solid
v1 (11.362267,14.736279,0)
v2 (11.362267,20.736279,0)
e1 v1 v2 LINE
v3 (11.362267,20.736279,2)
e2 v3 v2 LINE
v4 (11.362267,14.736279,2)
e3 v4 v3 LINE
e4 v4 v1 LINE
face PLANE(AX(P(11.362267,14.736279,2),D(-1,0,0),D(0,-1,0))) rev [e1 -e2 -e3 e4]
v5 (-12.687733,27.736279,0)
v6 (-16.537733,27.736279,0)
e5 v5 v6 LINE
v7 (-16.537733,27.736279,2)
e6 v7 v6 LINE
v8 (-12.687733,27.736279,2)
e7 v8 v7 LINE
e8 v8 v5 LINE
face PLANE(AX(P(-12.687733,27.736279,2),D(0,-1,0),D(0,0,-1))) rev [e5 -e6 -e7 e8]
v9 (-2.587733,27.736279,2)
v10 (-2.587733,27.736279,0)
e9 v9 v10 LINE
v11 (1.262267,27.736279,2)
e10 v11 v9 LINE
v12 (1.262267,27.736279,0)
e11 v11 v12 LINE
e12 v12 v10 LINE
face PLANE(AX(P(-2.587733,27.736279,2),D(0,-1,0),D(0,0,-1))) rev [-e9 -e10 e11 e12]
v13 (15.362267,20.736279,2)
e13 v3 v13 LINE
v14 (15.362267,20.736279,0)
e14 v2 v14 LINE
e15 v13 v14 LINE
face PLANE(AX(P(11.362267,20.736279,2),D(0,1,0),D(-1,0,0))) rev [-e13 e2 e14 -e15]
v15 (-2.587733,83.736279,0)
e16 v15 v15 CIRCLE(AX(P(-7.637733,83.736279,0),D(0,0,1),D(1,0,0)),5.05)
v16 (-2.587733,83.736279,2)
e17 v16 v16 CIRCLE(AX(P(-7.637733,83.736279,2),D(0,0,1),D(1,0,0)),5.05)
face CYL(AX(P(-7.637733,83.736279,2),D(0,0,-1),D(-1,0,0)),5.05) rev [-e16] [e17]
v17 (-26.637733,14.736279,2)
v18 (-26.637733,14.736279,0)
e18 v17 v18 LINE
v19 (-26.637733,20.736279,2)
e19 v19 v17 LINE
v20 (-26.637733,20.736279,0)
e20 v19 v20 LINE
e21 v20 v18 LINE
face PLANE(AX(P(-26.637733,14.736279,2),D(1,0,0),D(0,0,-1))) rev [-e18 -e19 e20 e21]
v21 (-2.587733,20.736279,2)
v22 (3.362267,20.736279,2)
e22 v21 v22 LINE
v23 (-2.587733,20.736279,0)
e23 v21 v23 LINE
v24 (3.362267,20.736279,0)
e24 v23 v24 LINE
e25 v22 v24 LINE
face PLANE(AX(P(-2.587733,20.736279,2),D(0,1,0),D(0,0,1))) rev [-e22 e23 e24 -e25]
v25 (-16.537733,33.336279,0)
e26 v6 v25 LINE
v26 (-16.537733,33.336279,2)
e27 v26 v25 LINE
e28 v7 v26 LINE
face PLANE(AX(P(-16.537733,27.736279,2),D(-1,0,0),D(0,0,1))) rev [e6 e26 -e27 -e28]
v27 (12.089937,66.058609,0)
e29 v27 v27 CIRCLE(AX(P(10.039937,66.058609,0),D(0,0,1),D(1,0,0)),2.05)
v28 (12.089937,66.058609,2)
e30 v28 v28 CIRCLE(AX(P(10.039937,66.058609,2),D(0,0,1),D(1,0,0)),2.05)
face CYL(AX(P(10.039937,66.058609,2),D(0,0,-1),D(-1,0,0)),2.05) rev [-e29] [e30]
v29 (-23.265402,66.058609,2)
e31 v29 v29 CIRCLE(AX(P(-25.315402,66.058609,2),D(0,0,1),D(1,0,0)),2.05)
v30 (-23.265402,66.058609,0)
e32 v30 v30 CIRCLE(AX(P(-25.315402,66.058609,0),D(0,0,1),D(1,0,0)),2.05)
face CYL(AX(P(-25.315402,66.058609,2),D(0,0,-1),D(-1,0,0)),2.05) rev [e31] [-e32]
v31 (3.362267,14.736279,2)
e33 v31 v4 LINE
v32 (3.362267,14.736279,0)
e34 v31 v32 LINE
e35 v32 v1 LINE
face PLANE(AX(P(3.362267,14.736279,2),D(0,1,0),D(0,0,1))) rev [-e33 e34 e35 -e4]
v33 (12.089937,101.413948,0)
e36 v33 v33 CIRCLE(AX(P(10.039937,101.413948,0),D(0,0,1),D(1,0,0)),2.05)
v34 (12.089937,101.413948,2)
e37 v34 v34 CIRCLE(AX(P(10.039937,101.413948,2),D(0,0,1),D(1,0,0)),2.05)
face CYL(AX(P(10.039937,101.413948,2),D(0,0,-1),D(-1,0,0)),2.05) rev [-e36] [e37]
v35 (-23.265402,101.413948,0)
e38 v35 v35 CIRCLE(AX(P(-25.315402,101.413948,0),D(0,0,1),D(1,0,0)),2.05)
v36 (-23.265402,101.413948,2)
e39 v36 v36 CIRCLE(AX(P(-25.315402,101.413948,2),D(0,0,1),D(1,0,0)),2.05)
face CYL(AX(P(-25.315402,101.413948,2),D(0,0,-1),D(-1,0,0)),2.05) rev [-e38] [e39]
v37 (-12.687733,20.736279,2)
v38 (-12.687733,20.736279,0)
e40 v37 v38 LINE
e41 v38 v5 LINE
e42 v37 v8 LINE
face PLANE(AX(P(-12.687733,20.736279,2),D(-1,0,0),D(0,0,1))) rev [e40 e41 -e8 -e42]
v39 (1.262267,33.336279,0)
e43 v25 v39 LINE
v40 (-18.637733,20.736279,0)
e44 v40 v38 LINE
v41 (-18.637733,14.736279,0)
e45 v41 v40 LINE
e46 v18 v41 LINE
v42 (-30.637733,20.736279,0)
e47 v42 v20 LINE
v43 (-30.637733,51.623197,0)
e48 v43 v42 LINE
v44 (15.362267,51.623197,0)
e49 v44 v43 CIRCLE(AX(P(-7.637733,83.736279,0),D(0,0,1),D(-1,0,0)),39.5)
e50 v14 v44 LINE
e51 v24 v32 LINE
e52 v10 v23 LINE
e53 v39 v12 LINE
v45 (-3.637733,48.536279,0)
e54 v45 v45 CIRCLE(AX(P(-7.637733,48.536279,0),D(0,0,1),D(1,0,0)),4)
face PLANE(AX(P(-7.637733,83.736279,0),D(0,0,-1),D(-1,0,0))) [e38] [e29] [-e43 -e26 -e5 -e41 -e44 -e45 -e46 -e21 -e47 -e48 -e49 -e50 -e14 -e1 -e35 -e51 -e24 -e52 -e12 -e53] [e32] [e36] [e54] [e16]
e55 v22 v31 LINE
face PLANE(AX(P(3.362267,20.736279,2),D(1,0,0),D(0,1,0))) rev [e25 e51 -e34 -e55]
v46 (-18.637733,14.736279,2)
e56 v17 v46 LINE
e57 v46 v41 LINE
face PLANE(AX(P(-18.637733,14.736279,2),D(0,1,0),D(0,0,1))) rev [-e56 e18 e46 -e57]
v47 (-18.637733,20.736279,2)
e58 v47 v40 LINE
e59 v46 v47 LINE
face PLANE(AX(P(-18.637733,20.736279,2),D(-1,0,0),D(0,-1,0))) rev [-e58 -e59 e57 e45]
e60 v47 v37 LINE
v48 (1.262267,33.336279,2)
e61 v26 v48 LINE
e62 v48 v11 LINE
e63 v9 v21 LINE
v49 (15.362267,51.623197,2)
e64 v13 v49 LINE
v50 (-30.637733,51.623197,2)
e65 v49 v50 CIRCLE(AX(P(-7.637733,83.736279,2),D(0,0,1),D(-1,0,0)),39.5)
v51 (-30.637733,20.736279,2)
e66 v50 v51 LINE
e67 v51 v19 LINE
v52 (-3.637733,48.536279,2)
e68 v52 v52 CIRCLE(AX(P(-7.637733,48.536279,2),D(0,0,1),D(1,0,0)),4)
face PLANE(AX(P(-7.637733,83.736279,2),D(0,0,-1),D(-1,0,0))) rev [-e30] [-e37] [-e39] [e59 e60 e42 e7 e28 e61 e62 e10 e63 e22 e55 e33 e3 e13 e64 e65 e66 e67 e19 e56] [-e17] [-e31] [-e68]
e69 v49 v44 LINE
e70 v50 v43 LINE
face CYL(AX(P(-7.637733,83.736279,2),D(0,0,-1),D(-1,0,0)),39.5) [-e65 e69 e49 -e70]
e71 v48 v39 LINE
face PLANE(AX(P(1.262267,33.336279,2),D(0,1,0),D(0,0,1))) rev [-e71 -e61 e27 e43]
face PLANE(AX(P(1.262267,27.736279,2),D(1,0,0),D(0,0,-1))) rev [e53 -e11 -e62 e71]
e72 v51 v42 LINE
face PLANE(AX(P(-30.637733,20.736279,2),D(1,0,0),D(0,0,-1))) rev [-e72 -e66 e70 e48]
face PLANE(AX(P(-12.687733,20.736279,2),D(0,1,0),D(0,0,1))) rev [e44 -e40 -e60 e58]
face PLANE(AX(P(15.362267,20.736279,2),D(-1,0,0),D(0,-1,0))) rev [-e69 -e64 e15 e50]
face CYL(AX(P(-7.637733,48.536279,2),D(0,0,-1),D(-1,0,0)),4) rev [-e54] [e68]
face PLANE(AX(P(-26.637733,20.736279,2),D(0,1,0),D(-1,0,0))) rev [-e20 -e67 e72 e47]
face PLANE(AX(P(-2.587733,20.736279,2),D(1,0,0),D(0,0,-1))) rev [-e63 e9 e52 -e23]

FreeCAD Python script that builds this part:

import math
import FreeCAD as App
import Part
import Sketcher

doc = App.newDocument("Part")
params = doc.addObject("Spreadsheet::Sheet", "Params")
for row, (alias, value) in enumerate([
    ("sketch1_diameter", "8 mm"),
    ("sketch1_diameter2", "4.1 mm"),
    ("sketch1_diameter3", "10.1 mm"),
    ("sketch1_radius", "39.5 mm"),
    ("sketch1_width", "8 mm"),
    ("pad1_length", "2 mm"),
], start=1):
    params.set(f"A{row}", alias)
    params.set(f"B{row}", "=" + value)
    params.setAlias(f"B{row}", alias)

body = doc.addObject("PartDesign::Body", "Body")

# Sketch on XY plane
sketch1 = body.newObject("Sketcher::SketchObject", "Sketch")
sketch1.AttachmentSupport = (doc.getObject("XY_Plane"), [""])
sketch1.MapMode = "FlatFace"
sketch1.addGeometry([
    Part.LineSegment(App.Vector(-2.587733, 27.736279, 0), App.Vector(-2.587733, 20.736279, 0)),  # 0
    Part.LineSegment(App.Vector(-2.587733, 20.736279, 0), App.Vector(3.362267, 20.736279, 0)),  # 1
    Part.LineSegment(App.Vector(3.362267, 20.736279, 0), App.Vector(3.362267, 14.736279, 0)),  # 2
    Part.LineSegment(App.Vector(3.362267, 14.736279, 0), App.Vector(11.362267, 14.736279, 0)),  # 3
    Part.LineSegment(App.Vector(11.362267, 14.736279, 0), App.Vector(11.362267, 20.736279, 0)),  # 4
    Part.LineSegment(App.Vector(11.362267, 20.736279, 0), App.Vector(15.362267, 20.736279, 0)),  # 5
    Part.LineSegment(App.Vector(15.362267, 20.736279, 0), App.Vector(15.362267, 51.623197, 0)),  # 6
    Part.ArcOfCircle(Part.Circle(App.Vector(-7.637733, 83.736279, 0), App.Vector(0, 0, 1), 39.5), math.radians(-54.389041), math.radians(234.389041)),  # 7
    Part.LineSegment(App.Vector(-30.637733, 51.623197, 0), App.Vector(-30.637733, 20.736279, 0)),  # 8
    Part.LineSegment(App.Vector(-30.637733, 20.736279, 0), App.Vector(-26.637733, 20.736279, 0)),  # 9
    Part.LineSegment(App.Vector(-26.637733, 20.736279, 0), App.Vector(-26.637733, 14.736279, 0)),  # 10
    Part.LineSegment(App.Vector(-26.637733, 14.736279, 0), App.Vector(-18.637733, 14.736279, 0)),  # 11
    Part.LineSegment(App.Vector(-18.637733, 14.736279, 0), App.Vector(-18.637733, 20.736279, 0)),  # 12
    Part.LineSegment(App.Vector(-18.637733, 20.736279, 0), App.Vector(-12.687733, 20.736279, 0)),  # 13
    Part.LineSegment(App.Vector(-12.687733, 20.736279, 0), App.Vector(-12.687733, 27.736279, 0)),  # 14
    Part.LineSegment(App.Vector(-12.687733, 27.736279, 0), App.Vector(-16.537733, 27.736279, 0)),  # 15
    Part.LineSegment(App.Vector(-16.537733, 27.736279, 0), App.Vector(-16.537733, 33.336279, 0)),  # 16
    Part.LineSegment(App.Vector(-16.537733, 33.336279, 0), App.Vector(1.262267, 33.336279, 0)),  # 17
    Part.LineSegment(App.Vector(1.262267, 33.336279, 0), App.Vector(1.262267, 27.736279, 0)),  # 18
    Part.LineSegment(App.Vector(1.262267, 27.736279, 0), App.Vector(-2.587733, 27.736279, 0)),  # 19
    Part.Circle(App.Vector(10.039937, 66.058609, 0), App.Vector(0, 0, 1), 2.05),  # 20
    Part.Circle(App.Vector(-7.637733, 48.536279, 0), App.Vector(0, 0, 1), 4),  # 21
    Part.Circle(App.Vector(-25.315402, 66.058609, 0), App.Vector(0, 0, 1), 2.05),  # 22
    Part.Circle(App.Vector(10.039937, 101.413948, 0), App.Vector(0, 0, 1), 2.05),  # 23
    Part.Circle(App.Vector(-7.637733, 83.736279, 0), App.Vector(0, 0, 1), 5.05),  # 24
    Part.Circle(App.Vector(-25.315402, 101.413948, 0), App.Vector(0, 0, 1), 2.05),  # 25
], False)
sketch1.addConstraint([
    Sketcher.Constraint("Coincident", 0, 2, 1, 1),
    Sketcher.Constraint("Coincident", 1, 2, 2, 1),
    Sketcher.Constraint("Coincident", 2, 2, 3, 1),
    Sketcher.Constraint("Coincident", 3, 2, 4, 1),
    Sketcher.Constraint("Coincident", 4, 2, 5, 1),
    Sketcher.Constraint("Coincident", 5, 2, 6, 1),
    Sketcher.Constraint("Coincident", 6, 2, 7, 1),
    Sketcher.Constraint("Coincident", 7, 2, 8, 1),
    Sketcher.Constraint("Coincident", 8, 2, 9, 1),
    Sketcher.Constraint("Coincident", 9, 2, 10, 1),
    Sketcher.Constraint("Coincident", 10, 2, 11, 1),
    Sketcher.Constraint("Coincident", 11, 2, 12, 1),
    Sketcher.Constraint("Coincident", 12, 2, 13, 1),
    Sketcher.Constraint("Coincident", 13, 2, 14, 1),
    Sketcher.Constraint("Coincident", 14, 2, 15, 1),
    Sketcher.Constraint("Coincident", 15, 2, 16, 1),
    Sketcher.Constraint("Coincident", 16, 2, 17, 1),
    Sketcher.Constraint("Coincident", 17, 2, 18, 1),
    Sketcher.Constraint("Coincident", 18, 2, 19, 1),
    Sketcher.Constraint("Coincident", 19, 2, 0, 1),
    Sketcher.Constraint("Vertical", 0),
    Sketcher.Constraint("Horizontal", 1),
    Sketcher.Constraint("Vertical", 2),
    Sketcher.Constraint("Horizontal", 3),
    Sketcher.Constraint("Vertical", 4),
    Sketcher.Constraint("Horizontal", 5),
    Sketcher.Constraint("Vertical", 6),
    Sketcher.Constraint("Vertical", 8),
    Sketcher.Constraint("Horizontal", 9),
    Sketcher.Constraint("Vertical", 10),
    Sketcher.Constraint("Horizontal", 11),
    Sketcher.Constraint("Vertical", 12),
    Sketcher.Constraint("Horizontal", 13),
    Sketcher.Constraint("Vertical", 14),
    Sketcher.Constraint("Horizontal", 15),
    Sketcher.Constraint("Vertical", 16),
    Sketcher.Constraint("Horizontal", 17),
    Sketcher.Constraint("Vertical", 18),
    Sketcher.Constraint("Horizontal", 19),
    Sketcher.Constraint("Coincident", 24, 3, 7, 3),
    Sketcher.Constraint("Equal", 20, 22),
    Sketcher.Constraint("Equal", 22, 23),
    Sketcher.Constraint("Equal", 23, 25),
    Sketcher.Constraint("Horizontal", 20, 3, 22, 3),
    Sketcher.Constraint("Horizontal", 23, 3, 25, 3),
    Sketcher.Constraint("Horizontal", 1, 2, 4, 2),
    Sketcher.Constraint("Horizontal", 6, 2, 7, 2),
    Sketcher.Constraint("Horizontal", 5, 2, 8, 2),
    Sketcher.Constraint("Horizontal", 3, 2, 10, 2),
    Sketcher.Constraint("Horizontal", 9, 2, 12, 2),
    Sketcher.Constraint("Horizontal", 15, 2, 18, 2),
    Sketcher.Constraint("Vertical", 7, 3, 21, 3),
    Sketcher.Constraint("Vertical", 20, 3, 23, 3),
    Sketcher.Constraint("Vertical", 22, 3, 25, 3),
    Sketcher.Constraint("Equal", 5, 9),
    Sketcher.Constraint("Equal", 3, 11),
    Sketcher.Constraint("Equal", 1, 13),
    Sketcher.Constraint("Equal", 15, 19),
    Sketcher.Constraint("Diameter", 21, 8.0),
    Sketcher.Constraint("Diameter", 20, 4.1),
    Sketcher.Constraint("Diameter", 24, 10.1),
    Sketcher.Constraint("Radius", 7, 39.5),
    Sketcher.Constraint("DistanceX", 3, 1, 3, 2, 8.0),
    Sketcher.Constraint("DistanceX", 5, 1, 5, 2, 4.0),
    Sketcher.Constraint("DistanceY", 0, 2, 0, 1, 7.0),
    Sketcher.Constraint("DistanceY", 2, 2, 2, 1, 6.0),
    Sketcher.Constraint("DistanceX", 17, 1, 17, 2, 17.8),
    Sketcher.Constraint("DistanceY", 16, 1, 16, 2, 5.6),
    Sketcher.Constraint("DistanceY", 0, 2, 7, 3, 63.0),
    Sketcher.Constraint("DistanceX", 21, 3, 1, 2, 11.0),
    Sketcher.Constraint("DistanceX", 1, 1, 1, 2, 5.95),
    Sketcher.Constraint("DistanceY", 21, 3, 7, 3, 35.2),
    Sketcher.Constraint("DistanceY", -1, 1, 7, 3, 83.736279),
    Sketcher.Constraint("DistanceY", -1, 1, 20, 3, 66.058609),
    Sketcher.Constraint("DistanceY", -1, 1, 23, 3, 101.413948),
    Sketcher.Constraint("DistanceX", 7, 3, 20, 3, 17.67767),
    Sketcher.Constraint("DistanceX", 22, 3, 21, 3, 17.67767),
    Sketcher.Constraint("DistanceX", 7, 3, -1, 1, 7.637733),
])
sketch1.setExpression("Constraints[58]", "Params.sketch1_diameter")
sketch1.setExpression("Constraints[59]", "Params.sketch1_diameter2")
sketch1.setExpression("Constraints[60]", "Params.sketch1_diameter3")
sketch1.setExpression("Constraints[61]", "Params.sketch1_radius")
sketch1.setExpression("Constraints[62]", "Params.sketch1_width")
pad1 = body.newObject("PartDesign::Pad", "Pad")
pad1.Profile = sketch1
pad1.setExpression("Length", "Params.pad1_length")

doc.recompute()
